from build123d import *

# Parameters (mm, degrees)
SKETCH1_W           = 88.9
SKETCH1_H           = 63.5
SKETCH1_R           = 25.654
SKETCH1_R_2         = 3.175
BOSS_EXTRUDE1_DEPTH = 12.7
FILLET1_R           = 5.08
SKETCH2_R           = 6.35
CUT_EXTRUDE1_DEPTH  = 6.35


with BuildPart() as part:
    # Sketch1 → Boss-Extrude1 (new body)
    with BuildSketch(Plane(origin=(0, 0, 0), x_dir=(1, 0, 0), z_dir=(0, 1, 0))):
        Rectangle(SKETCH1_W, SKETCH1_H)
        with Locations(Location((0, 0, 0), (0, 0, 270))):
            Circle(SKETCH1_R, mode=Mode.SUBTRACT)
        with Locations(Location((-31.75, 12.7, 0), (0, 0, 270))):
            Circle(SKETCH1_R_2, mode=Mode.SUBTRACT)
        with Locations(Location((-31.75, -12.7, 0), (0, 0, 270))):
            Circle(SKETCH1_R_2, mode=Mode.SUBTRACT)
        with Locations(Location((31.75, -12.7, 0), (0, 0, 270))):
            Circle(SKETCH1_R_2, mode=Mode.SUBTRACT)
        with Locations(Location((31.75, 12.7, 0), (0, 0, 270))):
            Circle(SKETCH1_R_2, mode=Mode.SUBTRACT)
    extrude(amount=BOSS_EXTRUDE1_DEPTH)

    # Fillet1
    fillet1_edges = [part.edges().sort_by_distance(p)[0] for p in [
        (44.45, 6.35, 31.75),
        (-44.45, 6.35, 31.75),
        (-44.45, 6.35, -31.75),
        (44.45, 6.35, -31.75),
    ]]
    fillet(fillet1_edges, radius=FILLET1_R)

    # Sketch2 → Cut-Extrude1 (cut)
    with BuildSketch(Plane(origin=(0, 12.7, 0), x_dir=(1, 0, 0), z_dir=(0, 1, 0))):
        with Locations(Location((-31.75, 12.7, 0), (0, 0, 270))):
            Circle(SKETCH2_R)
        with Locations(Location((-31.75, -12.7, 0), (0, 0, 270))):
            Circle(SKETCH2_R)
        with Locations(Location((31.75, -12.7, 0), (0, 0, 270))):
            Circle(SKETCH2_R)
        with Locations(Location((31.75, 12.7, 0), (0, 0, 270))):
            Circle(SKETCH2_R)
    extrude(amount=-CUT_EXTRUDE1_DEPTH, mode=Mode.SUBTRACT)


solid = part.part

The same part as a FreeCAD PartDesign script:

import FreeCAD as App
import Part
import Sketcher
from FreeCAD import Vector
Q = App.Units.Quantity


def edges_at(feature, points):
    """Names of the edges that pass closest to the given points."""
    edges = feature.Shape.Edges
    near = lambda p: min(range(len(edges)), key=lambda i: edges[i].distToShape(Part.Vertex(*p))[0])
    return sorted({f"Edge{near(p) + 1}" for p in points})


def add_polygon(sketch, points):
    """Adds a closed chain of lines whose ends are joined by coincident constraints."""
    first, n = sketch.GeometryCount, len(points)
    for a, b in zip(points, points[1:] + points[:1]):
        sketch.addGeometry(Part.LineSegment(App.Vector(*a, 0), App.Vector(*b, 0)), False)
    for i in range(n):
        sketch.addConstraint(Sketcher.Constraint("Coincident", first + i, 2, first + (i + 1) % n, 1))

doc = App.newDocument("Part")
params = doc.addObject("Spreadsheet::Sheet", "Params")
for row, (alias, value) in enumerate([
    ("sketch1_diameter", "0.25 in"),
    ("sketch1_diameter2", "2.02 in"),
    ("sketch1_width", "3.5 in"),
    ("sketch1_height", "2.5 in"),
    ("pad1_length", "0.5 in"),
    ("fillet_radius", "0.2 in"),
    ("sketch2_diameter", "0.5 in"),
    ("pocket1_length", "0.25 in"),
], start=1):
    params.set(f"A{row}", alias)
    params.set(f"B{row}", "=" + value)
    params.setAlias(f"B{row}", alias)

body = doc.addObject("PartDesign::Body", "Body")

# Sketch on XZ plane
sketch1 = doc.addObject("Sketcher::SketchObject", "Sketch")
body.addObject(sketch1)
sketch1.AttachmentSupport = (doc.XZ_Plane, [""])
sketch1.MapMode = "FlatFace"
add_polygon(sketch1, [(-44.5, -31.8), (-44.5, 31.8), (44.5, 31.8), (44.5, -31.8)])  # lines 0-3
sketch1.addGeometry(Part.Circle(Vector(-31.8, 12.7, 0), Vector(0, 0, 1), 3.2), False)  # 4
sketch1.addGeometry(Part.Circle(Vector(0, 0, 0), Vector(0, 0, 1), 25.7), False)  # 5
sketch1.addGeometry(Part.Circle(Vector(31.8, 12.7, 0), Vector(0, 0, 1), 3.2), False)  # 6
sketch1.addGeometry(Part.Circle(Vector(-31.8, -12.7, 0), Vector(0, 0, 1), 3.2), False)  # 7
sketch1.addGeometry(Part.Circle(Vector(31.8, -12.7, 0), Vector(0, 0, 1), 3.2), False)  # 8
sketch1.addConstraint(Sketcher.Constraint("Vertical", 0))
sketch1.addConstraint(Sketcher.Constraint("Horizontal", 1))
sketch1.addConstraint(Sketcher.Constraint("Vertical", 2))
sketch1.addConstraint(Sketcher.Constraint("Horizontal", 3))
sketch1.addConstraint(Sketcher.Constraint("Coincident", 5, 3, -1, 1))
sketch1.addConstraint(Sketcher.Constraint("Equal", 4, 6))
sketch1.addConstraint(Sketcher.Constraint("Equal", 6, 7))
sketch1.addConstraint(Sketcher.Constraint("Equal", 7, 8))
sketch1.addConstraint(Sketcher.Constraint("Symmetric", 6, 3, 7, 3, -1, 1))
sketch1.addConstraint(Sketcher.Constraint("Symmetric", 4, 3, 8, 3, -1, 1))
sketch1.addConstraint(Sketcher.Constraint("Symmetric", 0, 2, 2, 2, -1, 1))
sketch1.addConstraint(Sketcher.Constraint("Symmetric", 4, 3, 6, 3, -2))
sketch1.addConstraint(Sketcher.Constraint("Diameter", 4, Q("0.25 in")))
sketch1.addConstraint(Sketcher.Constraint("Diameter", 5, Q("2.02 in")))
sketch1.addConstraint(Sketcher.Constraint("DistanceX", 1, 1, 1, 2, Q("3.5 in")))
sketch1.addConstraint(Sketcher.Constraint("DistanceY", 0, 1, 0, 2, Q("2.5 in")))
sketch1.addConstraint(Sketcher.Constraint("DistanceY", 7, 3, 4, 3, Q("1 in")))
sketch1.addConstraint(Sketcher.Constraint("DistanceX", 0, 2, 6, 3, Q("3 in")))
sketch1.setExpression("Constraints[16]", "Params.sketch1_diameter")
sketch1.setExpression("Constraints[17]", "Params.sketch1_diameter2")
sketch1.setExpression("Constraints[18]", "Params.sketch1_width")
sketch1.setExpression("Constraints[19]", "Params.sketch1_height")
pad1 = doc.addObject("PartDesign::Pad", "Pad")
body.addObject(pad1)
pad1.Profile = sketch1
pad1.setExpression("Length", "Params.pad1_length")
pad1.Reversed = True
doc.recompute()

fillet = doc.addObject("PartDesign::Fillet", "Fillet")
body.addObject(fillet)
fillet.Base = (pad1, edges_at(pad1, [
    (44.45, 6.35, 31.75),
    (-44.45, 6.35, 31.75),
    (-44.45, 6.35, -31.75),
    (44.45, 6.35, -31.75),
]))
fillet.setExpression("Radius", "Params.fillet_radius")

# Sketch on XZ plane
sketch2 = doc.addObject("Sketcher::SketchObject", "Sketch001")
body.addObject(sketch2)
sketch2.AttachmentSupport = (doc.XZ_Plane, [""])
sketch2.MapMode = "FlatFace"
sketch2.AttachmentOffset = App.Placement(Vector(0, 0, -0.5 * 25.4), App.Rotation())
sketch2.addGeometry(Part.Circle(Vector(-32, -13, 0), Vector(0, 0, 1), 6), False)
sketch2.addGeometry(Part.Circle(Vector(-32, 13, 0), Vector(0, 0, 1), 6), False)
sketch2.addGeometry(Part.Circle(Vector(32, 13, 0), Vector(0, 0, 1), 6), False)
sketch2.addGeometry(Part.Circle(Vector(32, -13, 0), Vector(0, 0, 1), 6), False)
sketch2.addConstraint(Sketcher.Constraint("Equal", 0, 1))
sketch2.addConstraint(Sketcher.Constraint("Equal", 1, 2))
sketch2.addConstraint(Sketcher.Constraint("Equal", 2, 3))
sketch2.addConstraint(Sketcher.Constraint("Symmetric", 0, 3, 2, 3, -1, 1))
sketch2.addConstraint(Sketcher.Constraint("Symmetric", 1, 3, 3, 3, -1, 1))
sketch2.addConstraint(Sketcher.Constraint("Symmetric", 1, 3, 2, 3, -2))
sketch2.addConstraint(Sketcher.Constraint("Diameter", 0, Q("0.5 in")))
sketch2.addConstraint(Sketcher.Constraint("DistanceY", 0, 3, 1, 3, Q("1 in")))
sketch2.addConstraint(Sketcher.Constraint("DistanceX", 1, 3, 2, 3, Q("2.5 in")))
sketch2.setExpression("Constraints[6]", "Params.sketch2_diameter")
pocket1 = doc.addObject("PartDesign::Pocket", "Pocket")
body.addObject(pocket1)
pocket1.Profile = sketch2
pocket1.setExpression("Length", "Params.pocket1_length")
pocket1.Reversed = True

doc.recompute()
